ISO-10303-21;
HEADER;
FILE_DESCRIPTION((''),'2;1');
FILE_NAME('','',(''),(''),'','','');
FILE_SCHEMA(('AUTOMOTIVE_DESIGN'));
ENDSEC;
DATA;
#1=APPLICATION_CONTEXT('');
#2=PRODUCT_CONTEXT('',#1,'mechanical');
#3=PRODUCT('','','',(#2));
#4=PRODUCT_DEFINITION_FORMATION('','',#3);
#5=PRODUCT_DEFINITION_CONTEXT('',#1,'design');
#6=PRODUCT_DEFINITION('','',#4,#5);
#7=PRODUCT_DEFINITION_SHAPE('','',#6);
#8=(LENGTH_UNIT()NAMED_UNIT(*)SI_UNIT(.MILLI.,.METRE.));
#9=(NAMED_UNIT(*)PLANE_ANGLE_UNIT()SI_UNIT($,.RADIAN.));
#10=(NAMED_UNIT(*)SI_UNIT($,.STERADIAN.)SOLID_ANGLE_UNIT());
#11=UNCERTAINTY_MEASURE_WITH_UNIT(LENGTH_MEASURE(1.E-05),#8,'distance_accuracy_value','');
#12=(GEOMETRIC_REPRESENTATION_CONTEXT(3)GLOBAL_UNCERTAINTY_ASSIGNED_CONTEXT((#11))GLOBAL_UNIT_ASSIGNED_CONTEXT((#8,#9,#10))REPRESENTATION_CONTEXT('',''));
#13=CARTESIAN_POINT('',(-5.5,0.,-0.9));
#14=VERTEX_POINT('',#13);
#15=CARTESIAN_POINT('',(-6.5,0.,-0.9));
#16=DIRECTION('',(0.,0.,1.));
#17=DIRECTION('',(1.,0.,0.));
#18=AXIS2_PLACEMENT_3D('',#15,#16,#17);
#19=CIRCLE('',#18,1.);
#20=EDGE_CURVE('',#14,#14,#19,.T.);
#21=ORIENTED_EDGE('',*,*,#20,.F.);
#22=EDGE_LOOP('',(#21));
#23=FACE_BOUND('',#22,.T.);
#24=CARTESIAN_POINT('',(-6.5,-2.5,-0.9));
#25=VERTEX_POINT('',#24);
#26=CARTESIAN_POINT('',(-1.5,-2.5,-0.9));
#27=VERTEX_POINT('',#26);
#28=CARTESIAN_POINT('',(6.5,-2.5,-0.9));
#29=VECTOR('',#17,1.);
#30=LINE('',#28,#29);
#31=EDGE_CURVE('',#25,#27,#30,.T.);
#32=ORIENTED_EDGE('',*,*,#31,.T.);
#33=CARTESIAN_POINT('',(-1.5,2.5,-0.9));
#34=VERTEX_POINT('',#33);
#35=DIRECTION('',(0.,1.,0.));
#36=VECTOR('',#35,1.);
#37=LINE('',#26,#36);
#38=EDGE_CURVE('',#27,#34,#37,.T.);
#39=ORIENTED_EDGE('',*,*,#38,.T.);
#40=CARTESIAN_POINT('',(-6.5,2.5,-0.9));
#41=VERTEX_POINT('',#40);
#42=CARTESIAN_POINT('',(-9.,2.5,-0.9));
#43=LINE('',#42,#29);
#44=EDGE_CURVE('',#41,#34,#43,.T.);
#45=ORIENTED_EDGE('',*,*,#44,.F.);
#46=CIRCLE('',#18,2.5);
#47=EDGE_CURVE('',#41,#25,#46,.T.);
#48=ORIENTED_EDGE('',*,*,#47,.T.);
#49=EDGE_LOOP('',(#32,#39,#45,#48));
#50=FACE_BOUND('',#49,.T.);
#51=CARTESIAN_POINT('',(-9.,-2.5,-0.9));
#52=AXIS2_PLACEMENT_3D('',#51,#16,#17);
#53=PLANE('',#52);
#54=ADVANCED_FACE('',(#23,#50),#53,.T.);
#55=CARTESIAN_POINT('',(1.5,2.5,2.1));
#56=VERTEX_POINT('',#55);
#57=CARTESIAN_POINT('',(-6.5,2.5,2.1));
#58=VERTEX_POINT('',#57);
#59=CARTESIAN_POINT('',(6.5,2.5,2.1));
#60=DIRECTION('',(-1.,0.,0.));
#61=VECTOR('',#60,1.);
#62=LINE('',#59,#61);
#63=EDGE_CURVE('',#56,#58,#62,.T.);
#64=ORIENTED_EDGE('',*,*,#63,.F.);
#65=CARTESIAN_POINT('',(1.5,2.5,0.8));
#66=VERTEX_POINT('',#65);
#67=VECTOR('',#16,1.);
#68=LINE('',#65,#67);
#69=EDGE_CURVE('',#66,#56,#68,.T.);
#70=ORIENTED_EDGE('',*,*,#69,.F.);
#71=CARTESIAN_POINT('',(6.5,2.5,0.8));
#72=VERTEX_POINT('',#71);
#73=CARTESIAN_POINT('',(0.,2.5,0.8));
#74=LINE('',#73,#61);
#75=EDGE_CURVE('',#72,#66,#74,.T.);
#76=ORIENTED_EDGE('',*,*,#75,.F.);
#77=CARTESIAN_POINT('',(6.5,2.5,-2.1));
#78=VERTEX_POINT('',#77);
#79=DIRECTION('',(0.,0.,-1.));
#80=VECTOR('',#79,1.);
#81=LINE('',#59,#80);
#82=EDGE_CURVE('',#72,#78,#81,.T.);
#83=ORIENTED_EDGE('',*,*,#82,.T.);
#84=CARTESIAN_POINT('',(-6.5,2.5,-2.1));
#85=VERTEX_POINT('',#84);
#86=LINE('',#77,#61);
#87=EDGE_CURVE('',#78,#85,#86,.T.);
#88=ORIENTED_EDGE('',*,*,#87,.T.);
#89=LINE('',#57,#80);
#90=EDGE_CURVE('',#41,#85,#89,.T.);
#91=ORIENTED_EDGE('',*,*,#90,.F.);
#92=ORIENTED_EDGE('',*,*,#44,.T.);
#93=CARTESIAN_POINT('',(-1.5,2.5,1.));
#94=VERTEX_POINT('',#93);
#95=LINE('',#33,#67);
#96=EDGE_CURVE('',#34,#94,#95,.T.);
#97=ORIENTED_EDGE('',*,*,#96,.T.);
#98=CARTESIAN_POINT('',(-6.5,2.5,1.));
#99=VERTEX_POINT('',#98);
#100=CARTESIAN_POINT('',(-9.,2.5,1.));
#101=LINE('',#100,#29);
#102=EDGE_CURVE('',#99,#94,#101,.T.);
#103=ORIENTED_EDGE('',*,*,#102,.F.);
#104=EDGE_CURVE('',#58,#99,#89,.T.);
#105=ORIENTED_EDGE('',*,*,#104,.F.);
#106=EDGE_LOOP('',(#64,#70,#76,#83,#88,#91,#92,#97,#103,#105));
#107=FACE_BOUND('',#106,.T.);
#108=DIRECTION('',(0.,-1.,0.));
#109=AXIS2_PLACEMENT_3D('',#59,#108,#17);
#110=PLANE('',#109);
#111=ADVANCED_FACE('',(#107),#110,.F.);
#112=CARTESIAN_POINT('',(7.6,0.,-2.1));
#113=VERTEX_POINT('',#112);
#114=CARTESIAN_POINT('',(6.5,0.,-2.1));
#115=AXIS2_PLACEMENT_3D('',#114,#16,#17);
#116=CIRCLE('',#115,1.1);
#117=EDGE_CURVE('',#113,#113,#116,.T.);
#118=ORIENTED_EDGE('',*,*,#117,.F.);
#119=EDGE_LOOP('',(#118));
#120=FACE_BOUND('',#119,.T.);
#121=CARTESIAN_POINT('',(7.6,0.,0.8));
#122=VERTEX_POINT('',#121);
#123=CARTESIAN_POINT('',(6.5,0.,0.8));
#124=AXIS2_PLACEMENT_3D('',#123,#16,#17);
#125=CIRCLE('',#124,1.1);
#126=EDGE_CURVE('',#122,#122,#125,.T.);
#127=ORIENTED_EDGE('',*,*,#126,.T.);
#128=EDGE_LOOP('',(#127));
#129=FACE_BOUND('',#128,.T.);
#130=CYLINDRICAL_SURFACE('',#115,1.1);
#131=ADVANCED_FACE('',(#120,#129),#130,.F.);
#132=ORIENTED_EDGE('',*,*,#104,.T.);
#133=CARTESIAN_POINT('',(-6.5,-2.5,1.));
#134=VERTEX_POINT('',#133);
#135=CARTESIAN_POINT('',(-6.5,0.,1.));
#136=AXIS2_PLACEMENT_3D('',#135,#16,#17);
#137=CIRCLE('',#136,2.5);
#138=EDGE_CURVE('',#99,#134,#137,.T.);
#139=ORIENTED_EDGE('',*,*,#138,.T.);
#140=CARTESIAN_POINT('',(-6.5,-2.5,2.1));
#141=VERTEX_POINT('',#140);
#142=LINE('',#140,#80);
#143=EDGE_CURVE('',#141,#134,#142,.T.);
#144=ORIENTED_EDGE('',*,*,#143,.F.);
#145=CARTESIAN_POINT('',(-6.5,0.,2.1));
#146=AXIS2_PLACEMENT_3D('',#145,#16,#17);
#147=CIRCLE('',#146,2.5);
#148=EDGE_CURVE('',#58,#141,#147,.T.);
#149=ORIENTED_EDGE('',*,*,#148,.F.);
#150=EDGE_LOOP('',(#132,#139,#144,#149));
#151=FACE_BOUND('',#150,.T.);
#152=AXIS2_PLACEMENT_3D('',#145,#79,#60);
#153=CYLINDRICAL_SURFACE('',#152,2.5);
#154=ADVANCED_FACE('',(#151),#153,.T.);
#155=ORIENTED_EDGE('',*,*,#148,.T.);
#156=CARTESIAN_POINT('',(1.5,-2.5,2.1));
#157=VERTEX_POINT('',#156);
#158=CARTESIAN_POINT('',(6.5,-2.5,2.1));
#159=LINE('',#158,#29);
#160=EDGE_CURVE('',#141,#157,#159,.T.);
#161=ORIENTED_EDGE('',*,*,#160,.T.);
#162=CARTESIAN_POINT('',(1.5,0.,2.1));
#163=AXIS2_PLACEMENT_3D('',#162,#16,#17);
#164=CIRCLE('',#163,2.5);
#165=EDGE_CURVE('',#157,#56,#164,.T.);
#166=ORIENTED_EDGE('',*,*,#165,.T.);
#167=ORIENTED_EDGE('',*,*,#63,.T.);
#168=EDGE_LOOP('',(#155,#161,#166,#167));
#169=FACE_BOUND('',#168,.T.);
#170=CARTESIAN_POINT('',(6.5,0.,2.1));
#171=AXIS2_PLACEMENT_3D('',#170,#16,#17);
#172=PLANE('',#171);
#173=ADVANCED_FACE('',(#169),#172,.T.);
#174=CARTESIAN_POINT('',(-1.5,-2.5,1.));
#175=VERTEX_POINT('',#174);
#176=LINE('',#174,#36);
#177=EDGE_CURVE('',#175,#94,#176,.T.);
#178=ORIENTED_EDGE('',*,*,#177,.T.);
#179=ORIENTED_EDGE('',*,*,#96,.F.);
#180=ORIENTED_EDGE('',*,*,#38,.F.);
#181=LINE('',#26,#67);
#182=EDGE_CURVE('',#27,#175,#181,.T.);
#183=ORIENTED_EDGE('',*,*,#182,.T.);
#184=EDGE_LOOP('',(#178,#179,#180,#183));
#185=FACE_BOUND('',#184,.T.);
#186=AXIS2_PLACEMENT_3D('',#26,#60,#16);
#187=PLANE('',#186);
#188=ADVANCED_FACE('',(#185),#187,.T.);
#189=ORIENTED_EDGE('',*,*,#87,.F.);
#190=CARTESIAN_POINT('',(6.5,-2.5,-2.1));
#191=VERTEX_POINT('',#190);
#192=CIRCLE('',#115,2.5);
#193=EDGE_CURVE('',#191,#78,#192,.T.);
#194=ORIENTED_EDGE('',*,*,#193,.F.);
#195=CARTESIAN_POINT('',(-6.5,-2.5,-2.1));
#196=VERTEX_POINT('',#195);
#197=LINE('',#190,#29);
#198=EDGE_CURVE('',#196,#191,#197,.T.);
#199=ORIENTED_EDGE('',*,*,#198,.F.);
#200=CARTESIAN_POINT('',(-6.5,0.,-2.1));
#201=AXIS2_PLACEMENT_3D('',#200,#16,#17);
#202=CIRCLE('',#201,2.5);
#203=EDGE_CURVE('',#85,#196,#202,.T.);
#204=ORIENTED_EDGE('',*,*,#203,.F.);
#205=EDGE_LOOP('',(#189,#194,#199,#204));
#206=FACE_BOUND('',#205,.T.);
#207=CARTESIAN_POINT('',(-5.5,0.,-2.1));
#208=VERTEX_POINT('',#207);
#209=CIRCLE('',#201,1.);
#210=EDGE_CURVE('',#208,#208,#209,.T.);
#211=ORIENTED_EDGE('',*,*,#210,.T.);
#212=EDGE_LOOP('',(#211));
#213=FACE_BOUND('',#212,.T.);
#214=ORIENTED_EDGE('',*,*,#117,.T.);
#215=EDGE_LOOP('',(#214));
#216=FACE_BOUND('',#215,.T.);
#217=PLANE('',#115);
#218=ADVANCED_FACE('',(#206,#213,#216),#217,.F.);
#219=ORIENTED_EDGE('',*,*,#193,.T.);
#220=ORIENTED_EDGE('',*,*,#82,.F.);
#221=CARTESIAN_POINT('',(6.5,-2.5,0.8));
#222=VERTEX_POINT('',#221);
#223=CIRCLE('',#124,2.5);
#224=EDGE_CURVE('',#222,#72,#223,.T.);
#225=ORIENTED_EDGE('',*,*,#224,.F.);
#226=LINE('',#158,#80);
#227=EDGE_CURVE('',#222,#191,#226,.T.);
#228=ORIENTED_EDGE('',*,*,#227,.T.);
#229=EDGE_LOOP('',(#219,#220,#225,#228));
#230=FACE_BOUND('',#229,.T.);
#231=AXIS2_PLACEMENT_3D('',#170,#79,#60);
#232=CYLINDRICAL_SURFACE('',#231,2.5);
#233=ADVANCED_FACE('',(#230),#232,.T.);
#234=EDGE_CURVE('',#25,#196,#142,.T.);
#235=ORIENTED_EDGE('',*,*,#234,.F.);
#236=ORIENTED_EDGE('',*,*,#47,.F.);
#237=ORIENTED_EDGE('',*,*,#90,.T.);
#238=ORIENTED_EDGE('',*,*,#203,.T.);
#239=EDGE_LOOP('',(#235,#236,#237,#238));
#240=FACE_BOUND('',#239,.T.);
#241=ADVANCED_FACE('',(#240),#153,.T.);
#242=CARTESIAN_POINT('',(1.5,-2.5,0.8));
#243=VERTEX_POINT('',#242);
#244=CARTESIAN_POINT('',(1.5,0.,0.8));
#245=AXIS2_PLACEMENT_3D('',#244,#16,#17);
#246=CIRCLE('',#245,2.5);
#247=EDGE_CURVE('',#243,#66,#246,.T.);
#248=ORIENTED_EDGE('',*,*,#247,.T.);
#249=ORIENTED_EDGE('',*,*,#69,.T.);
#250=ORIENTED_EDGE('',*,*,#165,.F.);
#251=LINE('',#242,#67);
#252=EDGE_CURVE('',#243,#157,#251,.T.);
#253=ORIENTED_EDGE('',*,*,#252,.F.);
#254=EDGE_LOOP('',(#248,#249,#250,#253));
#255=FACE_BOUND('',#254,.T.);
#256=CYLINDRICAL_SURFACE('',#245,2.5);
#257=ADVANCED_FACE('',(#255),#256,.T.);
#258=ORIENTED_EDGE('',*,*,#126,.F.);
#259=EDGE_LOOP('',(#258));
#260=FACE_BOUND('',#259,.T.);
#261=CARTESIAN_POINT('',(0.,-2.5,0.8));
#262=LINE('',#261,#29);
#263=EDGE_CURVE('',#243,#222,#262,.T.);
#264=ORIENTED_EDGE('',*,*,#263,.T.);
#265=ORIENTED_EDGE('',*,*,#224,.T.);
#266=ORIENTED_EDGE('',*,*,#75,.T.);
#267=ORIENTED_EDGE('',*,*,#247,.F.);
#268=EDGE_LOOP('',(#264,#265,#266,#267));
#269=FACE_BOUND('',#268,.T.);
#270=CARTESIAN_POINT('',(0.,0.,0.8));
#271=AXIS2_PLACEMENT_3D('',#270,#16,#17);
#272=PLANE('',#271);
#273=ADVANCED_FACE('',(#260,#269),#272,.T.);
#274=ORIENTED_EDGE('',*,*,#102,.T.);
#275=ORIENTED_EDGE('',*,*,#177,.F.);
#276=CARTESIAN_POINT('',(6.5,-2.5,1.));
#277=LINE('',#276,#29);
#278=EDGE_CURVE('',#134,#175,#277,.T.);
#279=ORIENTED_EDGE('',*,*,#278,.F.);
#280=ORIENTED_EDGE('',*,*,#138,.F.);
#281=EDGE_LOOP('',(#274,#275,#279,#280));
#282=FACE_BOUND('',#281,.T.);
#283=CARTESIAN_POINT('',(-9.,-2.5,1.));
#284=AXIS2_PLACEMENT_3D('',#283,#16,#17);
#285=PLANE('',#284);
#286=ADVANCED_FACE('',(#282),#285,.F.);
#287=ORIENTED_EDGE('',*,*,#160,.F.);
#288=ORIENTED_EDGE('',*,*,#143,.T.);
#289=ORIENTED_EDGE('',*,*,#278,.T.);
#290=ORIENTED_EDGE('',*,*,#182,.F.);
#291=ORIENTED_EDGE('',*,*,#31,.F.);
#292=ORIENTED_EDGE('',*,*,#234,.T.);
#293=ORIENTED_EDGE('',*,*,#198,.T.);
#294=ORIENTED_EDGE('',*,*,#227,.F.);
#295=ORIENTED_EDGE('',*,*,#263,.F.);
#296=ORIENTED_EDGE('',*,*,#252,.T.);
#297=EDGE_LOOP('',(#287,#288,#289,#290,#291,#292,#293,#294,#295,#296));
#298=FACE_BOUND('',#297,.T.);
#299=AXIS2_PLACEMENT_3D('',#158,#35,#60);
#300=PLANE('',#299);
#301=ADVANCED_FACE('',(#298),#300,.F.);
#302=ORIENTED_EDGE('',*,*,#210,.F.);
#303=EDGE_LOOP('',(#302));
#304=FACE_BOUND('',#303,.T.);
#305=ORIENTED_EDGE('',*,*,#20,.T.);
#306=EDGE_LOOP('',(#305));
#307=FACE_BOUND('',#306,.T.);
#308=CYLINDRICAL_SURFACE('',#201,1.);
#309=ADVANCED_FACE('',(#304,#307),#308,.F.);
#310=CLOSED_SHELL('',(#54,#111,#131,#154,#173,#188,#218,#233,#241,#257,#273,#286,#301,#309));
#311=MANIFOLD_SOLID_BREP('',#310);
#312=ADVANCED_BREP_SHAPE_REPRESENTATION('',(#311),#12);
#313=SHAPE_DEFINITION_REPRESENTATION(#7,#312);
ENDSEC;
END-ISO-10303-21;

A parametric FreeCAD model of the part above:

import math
import FreeCAD as App
import Part
import Sketcher
Q = App.Units.Quantity

doc = App.newDocument("Part")
body = doc.addObject("PartDesign::Body", "Body")

# Sketch on XY plane
sketch1 = body.newObject("Sketcher::SketchObject", "Sketch")
sketch1.AttachmentSupport = (doc.getObject("XY_Plane"), [""])
sketch1.MapMode = "FlatFace"
sketch1.addGeometry([
    Part.LineSegment(App.Vector(-6.5, -2.5, 0), App.Vector(6.5, -2.5, 0)),
    Part.ArcOfCircle(Part.Circle(App.Vector(6.5, 0, 0), App.Vector(0, 0, 1), 2.5), math.radians(-90), math.radians(90)),
    Part.LineSegment(App.Vector(6.5, 2.5, 0), App.Vector(-6.5, 2.5, 0)),
    Part.ArcOfCircle(Part.Circle(App.Vector(-6.5, 0, 0), App.Vector(0, 0, 1), 2.5), math.radians(90), math.radians(270)),
], False)
sketch1.addConstraint([
    Sketcher.Constraint("Tangent", 0, 2, 1, 1),
    Sketcher.Constraint("Tangent", 1, 2, 2, 1),
    Sketcher.Constraint("Tangent", 2, 2, 3, 1),
    Sketcher.Constraint("Tangent", 3, 2, 0, 1),
    Sketcher.Constraint("Horizontal", 0),
    Sketcher.Constraint("Horizontal", 2),
    Sketcher.Constraint("Symmetric", 1, 3, 3, 3, -1, 1),
    Sketcher.Constraint("Radius", 1, Q("2.5 mm")),
    Sketcher.Constraint("DistanceX", 0, 1, 0, 2, Q("13 mm")),
])
pad1 = body.newObject("PartDesign::Pad", "Pad")
pad1.Profile = sketch1
pad1.Length = 4.2
pad1.Midplane = True

# Sketch on XY plane
sketch2 = body.newObject("Sketcher::SketchObject", "Sketch001")
sketch2.AttachmentSupport = (doc.getObject("XY_Plane"), [""])
sketch2.MapMode = "FlatFace"
sketch2.AttachmentOffset = App.Placement(App.Vector(0, 0, 2.1), App.Rotation())
sketch2.addGeometry([
    Part.LineSegment(App.Vector(6.5, 2.5, 0), App.Vector(1.5, 2.5, 0)),
    Part.ArcOfCircle(Part.Circle(App.Vector(1.5, 0, 0), App.Vector(0, 0, 1), 2.5), math.radians(-90), math.radians(90)),
    Part.LineSegment(App.Vector(1.5, -2.5, 0), App.Vector(6.5, -2.5, 0)),
    Part.ArcOfCircle(Part.Circle(App.Vector(6.5, 0, 0), App.Vector(0, 0, 1), 2.5), math.radians(-90), math.radians(90)),
], False)
sketch2.addConstraint([
    Sketcher.Constraint("Tangent", 0, 2, 1, 2),
    Sketcher.Constraint("Tangent", 1, 1, 2, 1),
    Sketcher.Constraint("Tangent", 2, 2, 3, 1),
    Sketcher.Constraint("Tangent", 3, 2, 0, 1),
    Sketcher.Constraint("Horizontal", 0),
    Sketcher.Constraint("Horizontal", 2),
    Sketcher.Constraint("PointOnObject", 1, 3, -1),
    Sketcher.Constraint("Radius", 1, Q("2.5 mm")),
    Sketcher.Constraint("DistanceX", 0, 2, 0, 1, Q("5 mm")),
    Sketcher.Constraint("DistanceX", -1, 1, 1, 3, Q("1.5 mm")),
])
pocket1 = body.newObject("PartDesign::Pocket", "Pocket")
pocket1.Profile = sketch2
pocket1.Length = 1.3

# Sketch on XY plane
sketch3 = body.newObject("Sketcher::SketchObject", "Sketch002")
sketch3.AttachmentSupport = (doc.getObject("XY_Plane"), [""])
sketch3.MapMode = "FlatFace"
sketch3.AttachmentOffset = App.Placement(App.Vector(0, 0, 0.8), App.Rotation())
sketch3.addGeometry(Part.Circle(App.Vector(6.5, 0, 0), App.Vector(0, 0, 1), 1.1), False)
sketch3.addConstraint([
    Sketcher.Constraint("PointOnObject", 0, 3, -1),
    Sketcher.Constraint("Diameter", 0, Q("2.2 mm")),
    Sketcher.Constraint("DistanceX", -1, 1, 0, 3, Q("6.5 mm")),
])
pocket2 = body.newObject("PartDesign::Pocket", "Pocket001")
pocket2.Profile = sketch3
pocket2.Type = "ThroughAll"

# Sketch on XZ plane
sketch4 = body.newObject("Sketcher::SketchObject", "Sketch003")
sketch4.AttachmentSupport = (doc.getObject("XZ_Plane"), [""])
sketch4.MapMode = "FlatFace"
sketch4.addGeometry([
    Part.LineSegment(App.Vector(-9, -0.9, 0), App.Vector(-9, 1, 0)),
    Part.LineSegment(App.Vector(-9, 1, 0), App.Vector(-1.5, 1, 0)),
    Part.LineSegment(App.Vector(-1.5, 1, 0), App.Vector(-1.5, -0.9, 0)),
    Part.LineSegment(App.Vector(-1.5, -0.9, 0), App.Vector(-9, -0.9, 0)),
], False)
sketch4.addConstraint([
    Sketcher.Constraint("Coincident", 0, 2, 1, 1),
    Sketcher.Constraint("Coincident", 1, 2, 2, 1),
    Sketcher.Constraint("Coincident", 2, 2, 3, 1),
    Sketcher.Constraint("Coincident", 3, 2, 0, 1),
    Sketcher.Constraint("Vertical", 0),
    Sketcher.Constraint("Horizontal", 1),
    Sketcher.Constraint("Vertical", 2),
    Sketcher.Constraint("Horizontal", 3),
    Sketcher.Constraint("DistanceX", 1, 1, 1, 2, Q("7.5 mm")),
    Sketcher.Constraint("DistanceY", 0, 1, 0, 2, Q("1.9 mm")),
    Sketcher.Constraint("DistanceX", 0, 2, -1, 1, Q("9 mm")),
    Sketcher.Constraint("DistanceY", -1, 1, 0, 2, Q("1 mm")),
])
pocket3 = body.newObject("PartDesign::Pocket", "Pocket002")
pocket3.Profile = sketch4
pocket3.Type = "ThroughAll"
pocket3.Midplane = True

# Sketch on XY plane
sketch5 = body.newObject("Sketcher::SketchObject", "Sketch004")
sketch5.AttachmentSupport = (doc.getObject("XY_Plane"), [""])
sketch5.MapMode = "FlatFace"
sketch5.AttachmentOffset = App.Placement(App.Vector(0, 0, -0.9), App.Rotation())
sketch5.addGeometry(Part.Circle(App.Vector(-6.5, 0, 0), App.Vector(0, 0, 1), 1), False)
sketch5.addConstraint([
    Sketcher.Constraint("PointOnObject", 0, 3, -1),
    Sketcher.Constraint("Diameter", 0, Q("2 mm")),
    Sketcher.Constraint("DistanceX", 0, 3, -1, 1, Q("6.5 mm")),
])
pocket4 = body.newObject("PartDesign::Pocket", "Pocket003")
pocket4.Profile = sketch5
pocket4.Type = "ThroughAll"

doc.recompute()
